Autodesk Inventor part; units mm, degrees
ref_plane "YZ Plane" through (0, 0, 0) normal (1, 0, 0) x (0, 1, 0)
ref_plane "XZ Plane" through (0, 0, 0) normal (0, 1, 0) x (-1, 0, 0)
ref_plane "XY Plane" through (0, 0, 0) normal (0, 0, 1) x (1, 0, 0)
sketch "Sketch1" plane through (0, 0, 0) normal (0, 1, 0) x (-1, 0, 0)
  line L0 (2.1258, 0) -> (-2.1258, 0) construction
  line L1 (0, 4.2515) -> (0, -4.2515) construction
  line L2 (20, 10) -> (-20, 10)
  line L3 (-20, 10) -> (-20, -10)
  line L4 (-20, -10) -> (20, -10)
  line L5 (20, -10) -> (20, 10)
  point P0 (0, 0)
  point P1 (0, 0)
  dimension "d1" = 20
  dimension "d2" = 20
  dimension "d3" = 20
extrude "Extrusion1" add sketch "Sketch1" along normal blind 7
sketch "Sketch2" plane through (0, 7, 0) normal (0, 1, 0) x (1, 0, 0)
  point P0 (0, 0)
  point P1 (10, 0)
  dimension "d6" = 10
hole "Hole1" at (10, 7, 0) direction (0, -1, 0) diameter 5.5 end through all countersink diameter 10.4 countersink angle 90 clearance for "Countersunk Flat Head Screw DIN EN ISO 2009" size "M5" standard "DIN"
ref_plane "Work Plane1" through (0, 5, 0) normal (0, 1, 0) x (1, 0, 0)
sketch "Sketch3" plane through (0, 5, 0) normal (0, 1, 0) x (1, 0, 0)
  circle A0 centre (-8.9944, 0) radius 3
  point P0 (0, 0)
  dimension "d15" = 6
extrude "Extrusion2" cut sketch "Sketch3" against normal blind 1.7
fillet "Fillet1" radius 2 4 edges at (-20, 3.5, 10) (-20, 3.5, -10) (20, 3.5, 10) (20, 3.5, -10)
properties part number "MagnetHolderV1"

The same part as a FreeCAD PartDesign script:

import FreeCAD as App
import Part
import Sketcher

V = App.Vector
Q = App.Units.Quantity


def edges_at(feature, points):
    """Names of the edges that pass closest to the given points."""
    edges = feature.Shape.Edges
    near = lambda p: min(range(len(edges)), key=lambda i: edges[i].distToShape(Part.Vertex(*p))[0])
    return sorted({f"Edge{near(p) + 1}" for p in points})

doc = App.newDocument("Part")
body = doc.addObject("PartDesign::Body", "Body")

# Sketch on XZ plane
sketch1 = body.newObject("Sketcher::SketchObject", "Sketch")
sketch1.AttachmentSupport = (doc.getObject("XZ_Plane"), [""])
sketch1.MapMode = "FlatFace"
sketch1.addGeometry([
    Part.LineSegment(V(-20, -10, 0), V(-20, 10, 0)),
    Part.LineSegment(V(-20, 10, 0), V(20, 10, 0)),
    Part.LineSegment(V(20, 10, 0), V(20, -10, 0)),
    Part.LineSegment(V(20, -10, 0), V(-20, -10, 0)),
], False)
sketch1.addConstraint([
    Sketcher.Constraint("Coincident", 0, 2, 1, 1),
    Sketcher.Constraint("Coincident", 1, 2, 2, 1),
    Sketcher.Constraint("Coincident", 2, 2, 3, 1),
    Sketcher.Constraint("Coincident", 3, 2, 0, 1),
    Sketcher.Constraint("Vertical", 0),
    Sketcher.Constraint("Horizontal", 1),
    Sketcher.Constraint("Vertical", 2),
    Sketcher.Constraint("Horizontal", 3),
    Sketcher.Constraint("Symmetric", 0, 2, 2, 2, -1, 1),
    Sketcher.Constraint("DistanceY", 0, 1, 0, 2, Q("20 mm")),
    Sketcher.Constraint("DistanceX", 0, 2, -1, 1, Q("20 mm")),
])
pad1 = body.newObject("PartDesign::Pad", "Pad")
pad1.Profile = sketch1
pad1.Length = 7
pad1.Reversed = True

# Sketch on XZ plane
sketch2 = body.newObject("Sketcher::SketchObject", "Sketch001")
sketch2.AttachmentSupport = (doc.getObject("XZ_Plane"), [""])
sketch2.MapMode = "FlatFace"
sketch2.AttachmentOffset = App.Placement(V(0, 0, -7), App.Rotation())
sketch2.addGeometry(Part.Circle(V(10, 0, 0), V(0, 0, 1), 2.75), False)
sketch2.addConstraint([
    Sketcher.Constraint("PointOnObject", 0, 3, -1),
    Sketcher.Constraint("Diameter", 0, Q("5.5 mm")),
    Sketcher.Constraint("DistanceX", -1, 1, 0, 3, Q("10 mm")),
])
doc.recompute()
hole = body.newObject("PartDesign::Hole", "Hole")
hole.Profile = sketch2
hole.ThreadType = "None"
hole.Diameter = 5.5
hole.DepthType = "ThroughAll"
hole.HoleCutType = "Countersink"
hole.HoleCutDiameter = 10.4
hole.HoleCutCountersinkAngle = 90
hole.Reversed = True

# Sketch on XZ plane
sketch3 = body.newObject("Sketcher::SketchObject", "Sketch002")
sketch3.AttachmentSupport = (doc.getObject("XZ_Plane"), [""])
sketch3.MapMode = "FlatFace"
sketch3.AttachmentOffset = App.Placement(V(0, 0, -5), App.Rotation())
sketch3.addGeometry(Part.Circle(V(-8.9944, 0, 0), V(0, 0, 1), 3), False)
sketch3.addConstraint([
    Sketcher.Constraint("PointOnObject", 0, 3, -1),
    Sketcher.Constraint("Diameter", 0, Q("6 mm")),
    Sketcher.Constraint("DistanceX", 0, 3, -1, 1, Q("8.9944 mm")),
])
pocket1 = body.newObject("PartDesign::Pocket", "Pocket")
pocket1.Profile = sketch3
pocket1.Length = 1.7
pocket1.Reversed = True
doc.recompute()

fillet = body.newObject("PartDesign::Fillet", "Fillet")
fillet.Base = (pocket1, edges_at(pocket1, [
    (-20, 3.5, 10),
    (-20, 3.5, -10),
    (20, 3.5, 10),
    (20, 3.5, -10),
]))
fillet.Radius = 2

doc.recompute()
